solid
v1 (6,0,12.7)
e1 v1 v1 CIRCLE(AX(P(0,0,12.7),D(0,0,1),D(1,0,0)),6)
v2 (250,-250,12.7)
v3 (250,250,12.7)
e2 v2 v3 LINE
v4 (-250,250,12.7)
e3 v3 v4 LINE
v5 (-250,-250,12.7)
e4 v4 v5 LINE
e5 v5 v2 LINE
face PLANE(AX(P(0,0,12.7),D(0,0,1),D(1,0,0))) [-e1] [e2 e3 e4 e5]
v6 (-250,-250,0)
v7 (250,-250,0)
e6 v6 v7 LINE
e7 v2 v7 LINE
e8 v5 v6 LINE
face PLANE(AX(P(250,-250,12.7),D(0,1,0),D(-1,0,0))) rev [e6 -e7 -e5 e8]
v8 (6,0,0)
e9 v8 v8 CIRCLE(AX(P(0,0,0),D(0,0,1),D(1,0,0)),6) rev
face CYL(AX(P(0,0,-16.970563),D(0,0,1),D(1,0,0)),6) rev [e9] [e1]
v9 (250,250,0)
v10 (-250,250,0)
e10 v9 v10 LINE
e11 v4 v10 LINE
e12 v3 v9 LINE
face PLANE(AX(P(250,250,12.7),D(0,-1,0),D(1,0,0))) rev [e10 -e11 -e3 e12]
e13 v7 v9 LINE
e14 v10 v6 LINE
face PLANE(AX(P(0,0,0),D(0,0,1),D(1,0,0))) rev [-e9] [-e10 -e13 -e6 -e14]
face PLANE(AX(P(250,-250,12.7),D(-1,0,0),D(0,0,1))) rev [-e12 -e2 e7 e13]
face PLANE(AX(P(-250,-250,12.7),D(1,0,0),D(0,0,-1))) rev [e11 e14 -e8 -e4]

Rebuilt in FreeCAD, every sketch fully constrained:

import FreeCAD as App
import Part
import Sketcher
Q = App.Units.Quantity

doc = App.newDocument("Part")
body = doc.addObject("PartDesign::Body", "Body")

sketch1 = body.newObject("Sketcher::SketchObject", "Sketch")
sketch1.AttachmentSupport = (doc.getObject("XY_Plane"), [""])
sketch1.MapMode = "FlatFace"
sketch1.addGeometry([
    Part.LineSegment(App.Vector(-250, 250, 0), App.Vector(-250, -250, 0)),
    Part.LineSegment(App.Vector(-250, -250, 0), App.Vector(250, -250, 0)),
    Part.LineSegment(App.Vector(250, -250, 0), App.Vector(250, 250, 0)),
    Part.LineSegment(App.Vector(250, 250, 0), App.Vector(-250, 250, 0)),
], False)
sketch1.addConstraint([
    Sketcher.Constraint("Coincident", 0, 2, 1, 1),
    Sketcher.Constraint("Coincident", 1, 2, 2, 1),
    Sketcher.Constraint("Coincident", 2, 2, 3, 1),
    Sketcher.Constraint("Coincident", 3, 2, 0, 1),
    Sketcher.Constraint("Vertical", 0),
    Sketcher.Constraint("Horizontal", 1),
    Sketcher.Constraint("Vertical", 2),
    Sketcher.Constraint("Horizontal", 3),
    Sketcher.Constraint("Symmetric", 0, 2, 2, 2, -1, 1),
    Sketcher.Constraint("Equal", 3, 0),
    Sketcher.Constraint("DistanceX", 1, 1, 1, 2, Q("500 mm")),
])
pad1 = body.newObject("PartDesign::Pad", "Pad")
pad1.Profile = sketch1
pad1.Length = 12.7

sketch2 = body.newObject("Sketcher::SketchObject", "Sketch001")
sketch2.AttachmentSupport = (doc.getObject("XY_Plane"), [""])
sketch2.MapMode = "FlatFace"
sketch2.AttachmentOffset = App.Placement(App.Vector(0, 0, 12.7), App.Rotation())
sketch2.addGeometry(Part.Circle(App.Vector(0, 0, 0), App.Vector(0, 0, 1), 6), False)
sketch2.addConstraint([
    Sketcher.Constraint("Coincident", 0, 3, -1, 1),
    Sketcher.Constraint("Diameter", 0, Q("12 mm")),
])
pocket1 = body.newObject("PartDesign::Pocket", "Pocket")
pocket1.Profile = sketch2
pocket1.Length = 12.7

doc.recompute()
